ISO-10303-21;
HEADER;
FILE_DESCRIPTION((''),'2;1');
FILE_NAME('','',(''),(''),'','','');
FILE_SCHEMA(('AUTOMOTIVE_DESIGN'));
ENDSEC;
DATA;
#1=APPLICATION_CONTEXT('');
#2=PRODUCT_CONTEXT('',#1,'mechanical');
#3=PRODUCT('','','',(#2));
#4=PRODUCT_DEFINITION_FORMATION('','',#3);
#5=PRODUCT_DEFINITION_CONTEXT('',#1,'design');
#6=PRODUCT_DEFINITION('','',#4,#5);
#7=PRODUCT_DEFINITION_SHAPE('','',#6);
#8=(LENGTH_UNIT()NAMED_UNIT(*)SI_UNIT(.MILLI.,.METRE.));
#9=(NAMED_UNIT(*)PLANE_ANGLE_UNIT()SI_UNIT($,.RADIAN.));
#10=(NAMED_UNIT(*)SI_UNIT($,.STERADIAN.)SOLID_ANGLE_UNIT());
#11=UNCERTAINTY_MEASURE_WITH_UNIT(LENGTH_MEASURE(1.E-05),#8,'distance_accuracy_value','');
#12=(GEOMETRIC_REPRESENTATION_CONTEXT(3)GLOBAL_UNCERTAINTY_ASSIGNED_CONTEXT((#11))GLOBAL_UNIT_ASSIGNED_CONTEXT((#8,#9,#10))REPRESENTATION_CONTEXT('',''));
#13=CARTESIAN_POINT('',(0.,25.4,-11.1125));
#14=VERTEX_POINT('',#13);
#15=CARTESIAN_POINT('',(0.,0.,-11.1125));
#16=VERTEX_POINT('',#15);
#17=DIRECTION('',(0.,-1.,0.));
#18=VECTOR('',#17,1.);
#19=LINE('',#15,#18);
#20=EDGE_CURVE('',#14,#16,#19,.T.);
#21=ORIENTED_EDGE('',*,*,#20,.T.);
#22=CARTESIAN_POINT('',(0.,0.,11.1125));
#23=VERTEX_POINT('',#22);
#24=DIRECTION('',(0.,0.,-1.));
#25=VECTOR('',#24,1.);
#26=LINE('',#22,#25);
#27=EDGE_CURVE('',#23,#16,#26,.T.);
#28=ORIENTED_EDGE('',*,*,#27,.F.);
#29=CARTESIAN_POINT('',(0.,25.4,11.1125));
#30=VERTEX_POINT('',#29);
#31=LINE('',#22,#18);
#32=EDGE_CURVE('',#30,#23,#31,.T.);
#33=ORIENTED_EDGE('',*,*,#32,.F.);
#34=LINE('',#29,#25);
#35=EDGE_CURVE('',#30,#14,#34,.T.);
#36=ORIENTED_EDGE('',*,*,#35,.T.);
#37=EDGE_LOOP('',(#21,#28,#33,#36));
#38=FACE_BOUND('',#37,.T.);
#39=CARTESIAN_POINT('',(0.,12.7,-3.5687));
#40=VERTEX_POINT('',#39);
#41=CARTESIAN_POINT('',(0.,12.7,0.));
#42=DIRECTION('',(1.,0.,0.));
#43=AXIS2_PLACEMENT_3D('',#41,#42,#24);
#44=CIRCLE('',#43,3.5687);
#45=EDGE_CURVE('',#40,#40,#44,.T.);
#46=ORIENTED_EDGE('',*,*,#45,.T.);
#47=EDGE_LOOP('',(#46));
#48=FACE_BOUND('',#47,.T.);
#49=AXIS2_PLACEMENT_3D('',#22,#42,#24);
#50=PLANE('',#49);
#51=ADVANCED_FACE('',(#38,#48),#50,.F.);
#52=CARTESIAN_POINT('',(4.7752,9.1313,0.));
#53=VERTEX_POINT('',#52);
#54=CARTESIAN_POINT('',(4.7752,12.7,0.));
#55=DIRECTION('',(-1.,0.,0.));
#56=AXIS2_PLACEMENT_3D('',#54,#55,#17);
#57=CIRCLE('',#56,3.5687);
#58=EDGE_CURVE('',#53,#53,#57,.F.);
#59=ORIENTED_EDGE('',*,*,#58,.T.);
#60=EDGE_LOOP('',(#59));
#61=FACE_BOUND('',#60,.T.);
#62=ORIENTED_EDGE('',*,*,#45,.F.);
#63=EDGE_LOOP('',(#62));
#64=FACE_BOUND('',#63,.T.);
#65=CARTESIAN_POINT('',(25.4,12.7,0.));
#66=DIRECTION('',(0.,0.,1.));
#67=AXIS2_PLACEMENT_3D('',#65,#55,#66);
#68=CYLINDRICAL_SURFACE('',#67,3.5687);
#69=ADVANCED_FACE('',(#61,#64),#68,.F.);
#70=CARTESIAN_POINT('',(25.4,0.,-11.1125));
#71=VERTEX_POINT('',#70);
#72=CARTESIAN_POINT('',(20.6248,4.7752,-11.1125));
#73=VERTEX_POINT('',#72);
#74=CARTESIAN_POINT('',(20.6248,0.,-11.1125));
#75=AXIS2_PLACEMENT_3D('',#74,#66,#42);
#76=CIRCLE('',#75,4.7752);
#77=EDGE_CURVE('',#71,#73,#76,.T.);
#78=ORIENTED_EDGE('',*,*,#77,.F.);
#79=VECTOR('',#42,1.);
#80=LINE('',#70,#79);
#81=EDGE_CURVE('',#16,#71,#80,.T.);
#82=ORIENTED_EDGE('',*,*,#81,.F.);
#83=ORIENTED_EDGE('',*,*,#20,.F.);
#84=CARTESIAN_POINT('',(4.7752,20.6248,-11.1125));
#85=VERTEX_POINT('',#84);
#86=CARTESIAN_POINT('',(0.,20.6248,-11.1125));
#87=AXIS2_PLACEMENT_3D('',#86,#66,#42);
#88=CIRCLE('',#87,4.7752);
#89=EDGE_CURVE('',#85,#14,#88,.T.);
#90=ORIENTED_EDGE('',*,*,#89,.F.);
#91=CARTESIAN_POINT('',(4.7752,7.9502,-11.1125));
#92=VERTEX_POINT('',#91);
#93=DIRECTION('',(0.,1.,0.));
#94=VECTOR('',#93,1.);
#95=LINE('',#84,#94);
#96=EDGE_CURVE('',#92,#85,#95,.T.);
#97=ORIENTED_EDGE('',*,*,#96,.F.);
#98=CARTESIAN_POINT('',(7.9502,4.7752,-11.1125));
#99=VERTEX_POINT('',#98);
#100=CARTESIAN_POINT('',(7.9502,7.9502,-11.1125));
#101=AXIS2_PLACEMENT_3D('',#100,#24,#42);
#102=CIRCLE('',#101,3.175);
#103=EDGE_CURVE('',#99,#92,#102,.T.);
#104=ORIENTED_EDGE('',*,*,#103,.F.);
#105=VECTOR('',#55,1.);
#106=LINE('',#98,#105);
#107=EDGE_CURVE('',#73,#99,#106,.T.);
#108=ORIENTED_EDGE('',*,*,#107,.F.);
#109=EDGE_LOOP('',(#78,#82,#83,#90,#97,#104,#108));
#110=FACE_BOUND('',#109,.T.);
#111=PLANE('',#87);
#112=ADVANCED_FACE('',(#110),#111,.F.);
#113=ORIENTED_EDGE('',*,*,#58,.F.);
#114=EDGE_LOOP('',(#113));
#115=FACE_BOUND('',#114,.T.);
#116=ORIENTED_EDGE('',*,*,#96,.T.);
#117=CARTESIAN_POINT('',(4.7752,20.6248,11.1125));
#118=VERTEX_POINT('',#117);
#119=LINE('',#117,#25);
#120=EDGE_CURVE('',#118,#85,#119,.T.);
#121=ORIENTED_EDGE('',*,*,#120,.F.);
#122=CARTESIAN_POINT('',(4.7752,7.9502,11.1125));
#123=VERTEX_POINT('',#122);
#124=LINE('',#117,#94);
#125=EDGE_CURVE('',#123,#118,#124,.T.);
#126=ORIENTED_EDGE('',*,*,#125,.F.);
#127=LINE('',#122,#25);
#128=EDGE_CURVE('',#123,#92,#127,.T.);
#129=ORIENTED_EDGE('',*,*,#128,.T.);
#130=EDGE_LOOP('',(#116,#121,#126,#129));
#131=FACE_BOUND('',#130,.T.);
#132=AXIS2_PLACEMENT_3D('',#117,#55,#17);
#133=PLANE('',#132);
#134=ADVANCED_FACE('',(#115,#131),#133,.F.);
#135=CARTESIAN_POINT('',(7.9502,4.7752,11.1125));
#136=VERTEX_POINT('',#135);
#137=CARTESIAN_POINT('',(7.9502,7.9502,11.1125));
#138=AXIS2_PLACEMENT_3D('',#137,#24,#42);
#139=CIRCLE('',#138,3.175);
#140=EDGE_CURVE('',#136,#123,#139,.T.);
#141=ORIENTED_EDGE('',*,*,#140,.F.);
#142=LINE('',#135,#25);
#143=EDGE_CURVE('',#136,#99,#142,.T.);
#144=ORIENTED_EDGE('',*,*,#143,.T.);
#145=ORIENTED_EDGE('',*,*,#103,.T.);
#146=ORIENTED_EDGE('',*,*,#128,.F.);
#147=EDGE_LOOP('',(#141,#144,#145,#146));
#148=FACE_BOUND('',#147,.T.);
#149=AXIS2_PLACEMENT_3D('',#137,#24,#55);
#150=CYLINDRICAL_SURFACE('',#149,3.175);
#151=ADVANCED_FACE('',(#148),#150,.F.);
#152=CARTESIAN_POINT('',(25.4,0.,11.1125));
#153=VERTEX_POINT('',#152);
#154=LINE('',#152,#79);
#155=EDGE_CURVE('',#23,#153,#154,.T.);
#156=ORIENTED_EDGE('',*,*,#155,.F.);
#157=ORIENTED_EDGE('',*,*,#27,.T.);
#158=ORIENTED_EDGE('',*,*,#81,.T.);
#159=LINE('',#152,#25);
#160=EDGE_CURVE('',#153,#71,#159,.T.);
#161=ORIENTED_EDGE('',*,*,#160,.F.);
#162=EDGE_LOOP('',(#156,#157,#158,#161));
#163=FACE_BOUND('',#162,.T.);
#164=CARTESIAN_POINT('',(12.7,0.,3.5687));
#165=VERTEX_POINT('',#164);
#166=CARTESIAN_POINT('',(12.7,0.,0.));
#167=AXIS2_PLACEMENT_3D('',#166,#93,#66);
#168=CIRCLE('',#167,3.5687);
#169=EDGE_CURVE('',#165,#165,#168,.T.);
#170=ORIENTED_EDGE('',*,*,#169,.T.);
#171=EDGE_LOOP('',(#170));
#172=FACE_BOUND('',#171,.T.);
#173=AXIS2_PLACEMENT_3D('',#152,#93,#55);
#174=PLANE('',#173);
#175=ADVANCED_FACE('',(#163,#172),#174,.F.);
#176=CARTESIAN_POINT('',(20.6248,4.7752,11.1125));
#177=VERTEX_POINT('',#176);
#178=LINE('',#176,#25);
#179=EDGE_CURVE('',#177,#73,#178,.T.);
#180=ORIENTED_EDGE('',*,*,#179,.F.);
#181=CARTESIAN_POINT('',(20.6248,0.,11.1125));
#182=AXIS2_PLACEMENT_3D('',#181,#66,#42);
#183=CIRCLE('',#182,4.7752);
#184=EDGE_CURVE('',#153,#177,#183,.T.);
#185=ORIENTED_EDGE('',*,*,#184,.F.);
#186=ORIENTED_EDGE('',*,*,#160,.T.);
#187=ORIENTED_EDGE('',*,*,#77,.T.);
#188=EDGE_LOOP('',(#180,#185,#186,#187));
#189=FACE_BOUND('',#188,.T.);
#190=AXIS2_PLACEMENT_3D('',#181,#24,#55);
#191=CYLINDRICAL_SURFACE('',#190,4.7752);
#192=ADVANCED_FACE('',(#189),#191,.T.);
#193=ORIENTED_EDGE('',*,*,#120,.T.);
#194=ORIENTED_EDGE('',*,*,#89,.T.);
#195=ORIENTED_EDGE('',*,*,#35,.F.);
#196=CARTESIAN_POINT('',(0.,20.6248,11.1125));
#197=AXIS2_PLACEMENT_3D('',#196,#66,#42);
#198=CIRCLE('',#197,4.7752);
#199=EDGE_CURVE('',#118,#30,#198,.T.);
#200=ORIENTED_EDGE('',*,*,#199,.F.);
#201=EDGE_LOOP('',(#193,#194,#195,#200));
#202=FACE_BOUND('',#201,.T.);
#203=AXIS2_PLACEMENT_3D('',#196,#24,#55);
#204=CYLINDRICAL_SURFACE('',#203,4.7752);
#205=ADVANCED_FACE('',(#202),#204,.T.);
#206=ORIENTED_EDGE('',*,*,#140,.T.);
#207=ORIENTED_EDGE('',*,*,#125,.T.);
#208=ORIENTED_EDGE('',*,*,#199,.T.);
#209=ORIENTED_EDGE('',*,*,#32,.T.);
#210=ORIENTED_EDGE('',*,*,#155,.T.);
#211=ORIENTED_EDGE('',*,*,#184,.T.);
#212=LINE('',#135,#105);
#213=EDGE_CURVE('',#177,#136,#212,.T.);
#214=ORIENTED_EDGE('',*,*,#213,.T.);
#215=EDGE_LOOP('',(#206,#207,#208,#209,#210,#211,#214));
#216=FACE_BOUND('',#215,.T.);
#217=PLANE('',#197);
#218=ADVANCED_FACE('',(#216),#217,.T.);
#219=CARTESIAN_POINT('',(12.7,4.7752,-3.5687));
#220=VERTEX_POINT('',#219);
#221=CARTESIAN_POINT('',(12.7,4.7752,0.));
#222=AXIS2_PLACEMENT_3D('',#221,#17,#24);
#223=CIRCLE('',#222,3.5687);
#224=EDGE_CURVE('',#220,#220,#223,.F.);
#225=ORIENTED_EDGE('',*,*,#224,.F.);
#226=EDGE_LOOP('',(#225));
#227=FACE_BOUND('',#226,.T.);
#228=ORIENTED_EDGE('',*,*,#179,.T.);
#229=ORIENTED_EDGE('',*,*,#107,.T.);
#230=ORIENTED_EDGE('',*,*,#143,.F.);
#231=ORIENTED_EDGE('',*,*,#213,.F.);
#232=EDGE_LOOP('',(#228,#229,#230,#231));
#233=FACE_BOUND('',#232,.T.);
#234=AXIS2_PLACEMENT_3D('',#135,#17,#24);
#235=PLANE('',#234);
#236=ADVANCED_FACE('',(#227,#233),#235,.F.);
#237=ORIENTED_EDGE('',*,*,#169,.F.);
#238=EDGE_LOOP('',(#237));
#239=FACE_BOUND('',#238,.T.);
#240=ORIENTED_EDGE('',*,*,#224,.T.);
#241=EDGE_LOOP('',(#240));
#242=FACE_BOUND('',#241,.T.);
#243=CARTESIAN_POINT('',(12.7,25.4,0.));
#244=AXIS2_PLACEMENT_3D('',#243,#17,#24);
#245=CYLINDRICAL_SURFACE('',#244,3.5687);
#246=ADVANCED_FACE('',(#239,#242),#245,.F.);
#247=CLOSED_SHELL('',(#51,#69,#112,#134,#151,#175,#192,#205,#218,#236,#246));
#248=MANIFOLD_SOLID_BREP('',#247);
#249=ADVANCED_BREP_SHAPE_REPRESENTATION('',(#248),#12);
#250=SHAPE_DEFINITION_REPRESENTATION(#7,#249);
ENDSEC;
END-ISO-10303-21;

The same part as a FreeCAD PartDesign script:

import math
import FreeCAD as App
import Part
import Sketcher
from FreeCAD import Vector
Q = App.Units.Quantity

doc = App.newDocument("Part")
body = doc.addObject("PartDesign::Body", "Body")

# Sketch on XY plane
sketch1 = body.newObject("Sketcher::SketchObject", "Sketch")
sketch1.AttachmentSupport = (doc.getObject("XY_Plane"), [""])
sketch1.MapMode = "FlatFace"
sketch1.addGeometry(Part.LineSegment(Vector(0, 25.4, 0), Vector(0, 0, 0)), False)
sketch1.addGeometry(Part.LineSegment(Vector(0, 0, 0), Vector(25.4, 0, 0)), False)
sketch1.addGeometry(Part.ArcOfCircle(Part.Circle(Vector(20.6, 0, 0), Vector(0, 0, 1), 4.8), math.radians(0), math.radians(90)), False)
sketch1.addGeometry(Part.LineSegment(Vector(20.6, 4.8, 0), Vector(8, 4.8, 0)), False)
sketch1.addGeometry(Part.ArcOfCircle(Part.Circle(Vector(8, 8, 0), Vector(0, 0, 1), 3.2), math.radians(-180), math.radians(-90)), False)
sketch1.addGeometry(Part.LineSegment(Vector(4.8, 8, 0), Vector(4.8, 20.6, 0)), False)
sketch1.addGeometry(Part.ArcOfCircle(Part.Circle(Vector(0, 20.6, 0), Vector(0, 0, 1), 4.8), math.radians(0), math.radians(90)), False)
sketch1.addConstraint(Sketcher.Constraint("Coincident", 0, 2, 1, 1))
sketch1.addConstraint(Sketcher.Constraint("Coincident", 1, 2, 2, 1))
sketch1.addConstraint(Sketcher.Constraint("Tangent", 2, 2, 3, 1))
sketch1.addConstraint(Sketcher.Constraint("Tangent", 3, 2, 4, 2))
sketch1.addConstraint(Sketcher.Constraint("Tangent", 4, 1, 5, 1))
sketch1.addConstraint(Sketcher.Constraint("Tangent", 5, 2, 6, 1))
sketch1.addConstraint(Sketcher.Constraint("Coincident", 6, 2, 0, 1))
sketch1.addConstraint(Sketcher.Constraint("Vertical", 0))
sketch1.addConstraint(Sketcher.Constraint("Horizontal", 1))
sketch1.addConstraint(Sketcher.Constraint("Horizontal", 3))
sketch1.addConstraint(Sketcher.Constraint("Vertical", 5))
sketch1.addConstraint(Sketcher.Constraint("Coincident", 0, 2, -1, 1))
sketch1.addConstraint(Sketcher.Constraint("Equal", 2, 6))
sketch1.addConstraint(Sketcher.Constraint("PointOnObject", 2, 3, -1))
sketch1.addConstraint(Sketcher.Constraint("PointOnObject", 6, 3, -2))
sketch1.addConstraint(Sketcher.Constraint("Equal", 1, 0))
sketch1.addConstraint(Sketcher.Constraint("DistanceX", 1, 1, 1, 2, Q("1 in")))
sketch1.addConstraint(Sketcher.Constraint("Radius", 2, Q("0.188 in")))
sketch1.addConstraint(Sketcher.Constraint("Radius", 4, Q("0.125 in")))
pad1 = body.newObject("PartDesign::Pad", "Pad")
pad1.Profile = sketch1
pad1.Length = Q("0.875 in")
pad1.Midplane = True

# Sketch on XZ plane
sketch2 = body.newObject("Sketcher::SketchObject", "Sketch001")
sketch2.AttachmentSupport = (doc.getObject("XZ_Plane"), [""])
sketch2.MapMode = "FlatFace"
sketch2.addGeometry(Part.Circle(Vector(12.7, 0, 0), Vector(0, 0, 1), 3.6), False)
sketch2.addConstraint(Sketcher.Constraint("PointOnObject", 0, 3, -1))
sketch2.addConstraint(Sketcher.Constraint("Diameter", 0, Q("0.281 in")))
sketch2.addConstraint(Sketcher.Constraint("DistanceX", -1, 1, 0, 3, Q("0.5 in")))
pocket1 = body.newObject("PartDesign::Pocket", "Pocket")
pocket1.Profile = sketch2
pocket1.Type = "ThroughAll"

# Sketch on YZ plane
sketch3 = body.newObject("Sketcher::SketchObject", "Sketch002")
sketch3.AttachmentSupport = (doc.getObject("YZ_Plane"), [""])
sketch3.MapMode = "FlatFace"
sketch3.addGeometry(Part.Circle(Vector(12.7, 0, 0), Vector(0, 0, 1), 3.6), False)
sketch3.addConstraint(Sketcher.Constraint("PointOnObject", 0, 3, -1))
sketch3.addConstraint(Sketcher.Constraint("Diameter", 0, Q("0.281 in")))
sketch3.addConstraint(Sketcher.Constraint("DistanceX", -1, 1, 0, 3, Q("0.5 in")))
pocket2 = body.newObject("PartDesign::Pocket", "Pocket001")
pocket2.Profile = sketch3
pocket2.Type = "ThroughAll"
pocket2.Reversed = True

doc.recompute()
